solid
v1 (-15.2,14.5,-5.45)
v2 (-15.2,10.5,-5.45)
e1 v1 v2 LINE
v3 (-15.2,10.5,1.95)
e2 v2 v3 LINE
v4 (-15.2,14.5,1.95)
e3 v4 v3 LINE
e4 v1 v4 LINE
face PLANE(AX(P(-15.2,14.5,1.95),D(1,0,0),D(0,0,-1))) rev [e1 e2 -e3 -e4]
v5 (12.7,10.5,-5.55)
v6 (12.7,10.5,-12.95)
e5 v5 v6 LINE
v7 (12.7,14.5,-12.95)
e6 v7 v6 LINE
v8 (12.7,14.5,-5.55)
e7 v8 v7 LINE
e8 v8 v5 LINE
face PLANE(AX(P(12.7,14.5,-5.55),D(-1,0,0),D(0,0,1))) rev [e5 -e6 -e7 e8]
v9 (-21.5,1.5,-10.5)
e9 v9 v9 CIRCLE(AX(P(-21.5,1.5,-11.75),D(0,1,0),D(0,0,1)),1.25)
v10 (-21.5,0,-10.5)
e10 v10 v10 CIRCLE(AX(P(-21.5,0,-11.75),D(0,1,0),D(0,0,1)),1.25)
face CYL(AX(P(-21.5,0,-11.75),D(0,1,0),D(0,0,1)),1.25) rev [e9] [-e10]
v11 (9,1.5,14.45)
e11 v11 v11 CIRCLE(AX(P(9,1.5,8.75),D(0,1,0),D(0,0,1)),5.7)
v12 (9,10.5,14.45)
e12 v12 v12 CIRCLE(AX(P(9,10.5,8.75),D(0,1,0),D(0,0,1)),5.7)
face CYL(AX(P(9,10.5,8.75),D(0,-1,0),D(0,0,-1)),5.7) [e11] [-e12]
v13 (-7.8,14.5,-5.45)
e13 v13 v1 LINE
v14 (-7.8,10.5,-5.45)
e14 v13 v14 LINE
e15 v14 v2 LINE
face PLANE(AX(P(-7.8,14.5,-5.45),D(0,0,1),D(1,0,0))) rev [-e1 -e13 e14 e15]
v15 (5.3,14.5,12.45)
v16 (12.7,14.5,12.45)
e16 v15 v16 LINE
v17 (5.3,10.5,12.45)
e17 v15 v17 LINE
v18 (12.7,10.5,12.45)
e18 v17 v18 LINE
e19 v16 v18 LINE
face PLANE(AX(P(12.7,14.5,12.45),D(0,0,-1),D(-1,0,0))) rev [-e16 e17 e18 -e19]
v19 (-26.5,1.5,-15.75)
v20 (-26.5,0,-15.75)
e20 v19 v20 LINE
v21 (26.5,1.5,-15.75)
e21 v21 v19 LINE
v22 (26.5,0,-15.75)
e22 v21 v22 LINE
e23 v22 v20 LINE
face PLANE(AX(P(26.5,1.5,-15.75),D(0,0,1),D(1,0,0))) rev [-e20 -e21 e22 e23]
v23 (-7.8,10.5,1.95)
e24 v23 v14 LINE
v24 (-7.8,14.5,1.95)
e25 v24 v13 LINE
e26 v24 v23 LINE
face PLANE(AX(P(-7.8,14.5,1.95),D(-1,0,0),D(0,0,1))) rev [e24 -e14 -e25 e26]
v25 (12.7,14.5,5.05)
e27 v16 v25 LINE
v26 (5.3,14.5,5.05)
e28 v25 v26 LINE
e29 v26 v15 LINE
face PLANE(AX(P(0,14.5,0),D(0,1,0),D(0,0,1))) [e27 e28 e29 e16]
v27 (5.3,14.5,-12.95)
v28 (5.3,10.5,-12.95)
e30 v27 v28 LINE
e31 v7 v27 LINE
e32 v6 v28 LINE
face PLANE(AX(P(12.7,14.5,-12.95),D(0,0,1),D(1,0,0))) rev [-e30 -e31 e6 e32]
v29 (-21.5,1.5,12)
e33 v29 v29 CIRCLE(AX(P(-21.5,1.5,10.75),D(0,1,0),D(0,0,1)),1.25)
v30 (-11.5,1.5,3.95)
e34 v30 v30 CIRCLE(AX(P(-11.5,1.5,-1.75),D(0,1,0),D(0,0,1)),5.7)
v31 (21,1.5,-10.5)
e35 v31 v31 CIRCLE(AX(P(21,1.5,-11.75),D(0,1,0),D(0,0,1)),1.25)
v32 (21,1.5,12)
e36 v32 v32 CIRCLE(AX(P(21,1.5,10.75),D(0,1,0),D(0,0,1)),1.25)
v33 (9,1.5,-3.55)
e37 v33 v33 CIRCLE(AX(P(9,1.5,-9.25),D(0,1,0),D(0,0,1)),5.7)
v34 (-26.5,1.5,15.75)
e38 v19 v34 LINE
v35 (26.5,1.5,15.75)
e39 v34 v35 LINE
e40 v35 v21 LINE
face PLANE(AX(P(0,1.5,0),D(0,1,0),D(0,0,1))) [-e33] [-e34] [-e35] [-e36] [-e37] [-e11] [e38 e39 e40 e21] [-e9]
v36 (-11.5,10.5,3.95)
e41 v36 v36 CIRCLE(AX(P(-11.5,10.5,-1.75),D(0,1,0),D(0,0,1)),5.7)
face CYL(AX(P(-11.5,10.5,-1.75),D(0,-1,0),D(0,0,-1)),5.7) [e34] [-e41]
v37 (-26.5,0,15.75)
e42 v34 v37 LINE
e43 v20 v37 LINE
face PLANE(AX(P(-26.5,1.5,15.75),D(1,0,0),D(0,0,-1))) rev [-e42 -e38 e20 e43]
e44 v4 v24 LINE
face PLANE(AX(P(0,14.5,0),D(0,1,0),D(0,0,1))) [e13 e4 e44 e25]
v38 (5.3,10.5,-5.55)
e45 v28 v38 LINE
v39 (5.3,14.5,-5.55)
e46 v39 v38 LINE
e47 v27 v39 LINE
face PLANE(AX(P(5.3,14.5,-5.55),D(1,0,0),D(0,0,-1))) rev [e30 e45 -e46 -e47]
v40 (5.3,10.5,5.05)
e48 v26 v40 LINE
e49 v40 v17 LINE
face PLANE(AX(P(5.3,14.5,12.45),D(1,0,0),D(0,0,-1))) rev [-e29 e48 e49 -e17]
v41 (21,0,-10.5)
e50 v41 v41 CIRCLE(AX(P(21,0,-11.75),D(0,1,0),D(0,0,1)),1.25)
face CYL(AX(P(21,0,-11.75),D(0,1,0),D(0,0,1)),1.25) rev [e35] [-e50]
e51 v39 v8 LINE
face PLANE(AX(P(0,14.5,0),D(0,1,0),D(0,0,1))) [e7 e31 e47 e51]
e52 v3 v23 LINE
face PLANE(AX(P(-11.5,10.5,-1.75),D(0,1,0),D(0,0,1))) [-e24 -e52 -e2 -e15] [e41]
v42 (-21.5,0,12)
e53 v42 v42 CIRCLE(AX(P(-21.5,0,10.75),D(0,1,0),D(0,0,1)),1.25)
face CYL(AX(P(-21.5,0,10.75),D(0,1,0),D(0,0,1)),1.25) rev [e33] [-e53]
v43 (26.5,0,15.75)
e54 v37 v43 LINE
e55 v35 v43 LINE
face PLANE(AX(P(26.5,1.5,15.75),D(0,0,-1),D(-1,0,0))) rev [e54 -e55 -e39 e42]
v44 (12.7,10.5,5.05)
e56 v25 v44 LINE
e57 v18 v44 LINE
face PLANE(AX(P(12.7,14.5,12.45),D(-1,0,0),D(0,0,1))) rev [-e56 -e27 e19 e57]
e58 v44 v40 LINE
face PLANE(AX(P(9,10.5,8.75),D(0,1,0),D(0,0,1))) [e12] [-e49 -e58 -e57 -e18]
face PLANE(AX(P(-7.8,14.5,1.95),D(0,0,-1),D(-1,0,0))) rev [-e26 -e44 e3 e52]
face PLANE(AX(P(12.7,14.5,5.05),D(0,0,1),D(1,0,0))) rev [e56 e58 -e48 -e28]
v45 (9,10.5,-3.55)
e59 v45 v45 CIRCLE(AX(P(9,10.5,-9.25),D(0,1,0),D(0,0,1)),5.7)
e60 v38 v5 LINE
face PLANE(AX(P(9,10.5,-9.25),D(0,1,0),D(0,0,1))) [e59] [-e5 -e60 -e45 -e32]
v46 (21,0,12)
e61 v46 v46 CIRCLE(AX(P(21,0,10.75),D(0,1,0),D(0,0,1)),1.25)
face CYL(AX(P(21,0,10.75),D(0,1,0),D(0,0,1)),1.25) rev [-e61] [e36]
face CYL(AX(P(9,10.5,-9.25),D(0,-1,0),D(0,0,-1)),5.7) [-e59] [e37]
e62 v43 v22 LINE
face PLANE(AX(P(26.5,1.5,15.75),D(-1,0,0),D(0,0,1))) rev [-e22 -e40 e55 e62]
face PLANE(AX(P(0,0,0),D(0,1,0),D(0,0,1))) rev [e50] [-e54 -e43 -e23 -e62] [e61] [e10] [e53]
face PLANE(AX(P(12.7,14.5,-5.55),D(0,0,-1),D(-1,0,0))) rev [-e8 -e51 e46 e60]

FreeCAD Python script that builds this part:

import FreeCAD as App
import Part
import Sketcher
from FreeCAD import Vector


def add_polygon(sketch, points):
    """Adds a closed chain of lines whose ends are joined by coincident constraints."""
    first, n = sketch.GeometryCount, len(points)
    for a, b in zip(points, points[1:] + points[:1]):
        sketch.addGeometry(Part.LineSegment(App.Vector(*a, 0), App.Vector(*b, 0)), False)
    for i in range(n):
        sketch.addConstraint(Sketcher.Constraint("Coincident", first + i, 2, first + (i + 1) % n, 1))

doc = App.newDocument("Part")
body = doc.addObject("PartDesign::Body", "Body")

# Sketch on XZ plane
sketch1 = doc.addObject("Sketcher::SketchObject", "Sketch")
body.addObject(sketch1)
sketch1.AttachmentSupport = (doc.XZ_Plane, [""])
sketch1.MapMode = "FlatFace"
add_polygon(sketch1, [(-26.5, -15.75), (-26.5, 15.75), (26.5, 15.75), (26.5, -15.75)])  # lines 0-3
sketch1.addConstraint([
    Sketcher.Constraint("Vertical", 0),
    Sketcher.Constraint("Horizontal", 1),
    Sketcher.Constraint("Vertical", 2),
    Sketcher.Constraint("Horizontal", 3),
    Sketcher.Constraint("Symmetric", 0, 2, 2, 2, -1, 1),
    Sketcher.Constraint("DistanceX", 1, 1, 1, 2, 53.0),
    Sketcher.Constraint("DistanceY", 0, 1, 0, 2, 31.5),
])
pad1 = doc.addObject("PartDesign::Pad", "Pad")
body.addObject(pad1)
pad1.Profile = sketch1
pad1.Length = 1.5
pad1.Reversed = True

# Sketch on XZ plane
sketch2 = doc.addObject("Sketcher::SketchObject", "Sketch001")
body.addObject(sketch2)
sketch2.AttachmentSupport = (doc.XZ_Plane, [""])
sketch2.MapMode = "FlatFace"
sketch2.AttachmentOffset = App.Placement(Vector(0, 0, -1.5), App.Rotation())
sketch2.addGeometry([
    Part.Circle(Vector(-21.5, -11.75, 0), Vector(0, 0, 1), 1.25),
    Part.Circle(Vector(21, -11.75, 0), Vector(0, 0, 1), 1.25),
    Part.Circle(Vector(21, 10.75, 0), Vector(0, 0, 1), 1.25),
    Part.Circle(Vector(-21.5, 10.75, 0), Vector(0, 0, 1), 1.25),
], False)
sketch2.addConstraint([
    Sketcher.Constraint("Equal", 0, 1),
    Sketcher.Constraint("Equal", 1, 2),
    Sketcher.Constraint("Equal", 2, 3),
    Sketcher.Constraint("Horizontal", 0, 3, 1, 3),
    Sketcher.Constraint("Horizontal", 2, 3, 3, 3),
    Sketcher.Constraint("Vertical", 1, 3, 2, 3),
    Sketcher.Constraint("Vertical", 0, 3, 3, 3),
    Sketcher.Constraint("Diameter", 0, 2.5),
    Sketcher.Constraint("DistanceX", -1, 1, 1, 3, 21.0),
    Sketcher.Constraint("DistanceX", 0, 3, -1, 1, 21.5),
    Sketcher.Constraint("DistanceY", 1, 3, 2, 3, 22.5),
    Sketcher.Constraint("DistanceY", 0, 3, -1, 1, 11.75),
])
pocket1 = doc.addObject("PartDesign::Pocket", "Pocket")
body.addObject(pocket1)
pocket1.Profile = sketch2
pocket1.Length = 1.5
pocket1.Reversed = True

# Sketch on XZ plane
sketch3 = doc.addObject("Sketcher::SketchObject", "Sketch002")
body.addObject(sketch3)
sketch3.AttachmentSupport = (doc.XZ_Plane, [""])
sketch3.MapMode = "FlatFace"
sketch3.AttachmentOffset = App.Placement(Vector(0, 0, -1.5), App.Rotation())
sketch3.addGeometry([
    Part.Circle(Vector(-11.5, -1.75, 0), Vector(0, 0, 1), 5.7),
    Part.Circle(Vector(9, 8.75, 0), Vector(0, 0, 1), 5.7),
    Part.Circle(Vector(9, -9.25, 0), Vector(0, 0, 1), 5.7),
], False)
sketch3.addConstraint([
    Sketcher.Constraint("Equal", 0, 1),
    Sketcher.Constraint("Equal", 1, 2),
    Sketcher.Constraint("Vertical", 1, 3, 2, 3),
    Sketcher.Constraint("Diameter", 0, 11.4),
    Sketcher.Constraint("DistanceX", -1, 1, 1, 3, 9.0),
    Sketcher.Constraint("DistanceY", 2, 3, 1, 3, 18.0),
    Sketcher.Constraint("DistanceX", 0, 3, -1, 1, 11.5),
    Sketcher.Constraint("DistanceY", 0, 3, 1, 3, 10.5),
    Sketcher.Constraint("DistanceY", 0, 3, -1, 1, 1.75),
])
pad2 = doc.addObject("PartDesign::Pad", "Pad001")
body.addObject(pad2)
pad2.Profile = sketch3
pad2.Length = 9
pad2.Reversed = True

# Sketch on XZ plane
sketch4 = doc.addObject("Sketcher::SketchObject", "Sketch003")
body.addObject(sketch4)
sketch4.AttachmentSupport = (doc.XZ_Plane, [""])
sketch4.MapMode = "FlatFace"
sketch4.AttachmentOffset = App.Placement(Vector(0, 0, -10.5), App.Rotation())
add_polygon(sketch4, [(-15.2, -5.45), (-15.2, 1.95), (-7.8, 1.95), (-7.8, -5.45)])  # lines 0-3
add_polygon(sketch4, [(5.3, -12.95), (5.3, -5.55), (12.7, -5.55), (12.7, -12.95)])  # lines 4-7
add_polygon(sketch4, [(5.3, 5.05), (5.3, 12.45), (12.7, 12.45), (12.7, 5.05)])  # lines 8-11
sketch4.addConstraint([
    Sketcher.Constraint("Vertical", 0),
    Sketcher.Constraint("Horizontal", 1),
    Sketcher.Constraint("Vertical", 2),
    Sketcher.Constraint("Horizontal", 3),
    Sketcher.Constraint("Vertical", 4),
    Sketcher.Constraint("Horizontal", 5),
    Sketcher.Constraint("Vertical", 6),
    Sketcher.Constraint("Horizontal", 7),
    Sketcher.Constraint("Vertical", 8),
    Sketcher.Constraint("Horizontal", 9),
    Sketcher.Constraint("Vertical", 10),
    Sketcher.Constraint("Horizontal", 11),
    Sketcher.Constraint("Vertical", 7, 2, 8, 2),
    Sketcher.Constraint("Vertical", 6, 2, 9, 2),
    Sketcher.Constraint("Equal", 3, 5),
    Sketcher.Constraint("Equal", 11, 0),
    Sketcher.Constraint("Equal", 2, 4),
    Sketcher.Constraint("Equal", 6, 8),
    Sketcher.Constraint("DistanceX", 1, 1, 1, 2, 7.4),
    Sketcher.Constraint("DistanceY", 4, 2, 8, 2, 18.0),
    Sketcher.Constraint("DistanceX", 0, 2, -1, 1, 15.2),
    Sketcher.Constraint("DistanceX", -1, 1, 4, 2, 5.3),
    Sketcher.Constraint("DistanceY", 4, 2, 2, 2, 0.1),
    Sketcher.Constraint("DistanceY", -1, 1, 0, 2, 1.95),
])
pad3 = doc.addObject("PartDesign::Pad", "Pad002")
body.addObject(pad3)
pad3.Profile = sketch4
pad3.Length = 4
pad3.Reversed = True

doc.recompute()
